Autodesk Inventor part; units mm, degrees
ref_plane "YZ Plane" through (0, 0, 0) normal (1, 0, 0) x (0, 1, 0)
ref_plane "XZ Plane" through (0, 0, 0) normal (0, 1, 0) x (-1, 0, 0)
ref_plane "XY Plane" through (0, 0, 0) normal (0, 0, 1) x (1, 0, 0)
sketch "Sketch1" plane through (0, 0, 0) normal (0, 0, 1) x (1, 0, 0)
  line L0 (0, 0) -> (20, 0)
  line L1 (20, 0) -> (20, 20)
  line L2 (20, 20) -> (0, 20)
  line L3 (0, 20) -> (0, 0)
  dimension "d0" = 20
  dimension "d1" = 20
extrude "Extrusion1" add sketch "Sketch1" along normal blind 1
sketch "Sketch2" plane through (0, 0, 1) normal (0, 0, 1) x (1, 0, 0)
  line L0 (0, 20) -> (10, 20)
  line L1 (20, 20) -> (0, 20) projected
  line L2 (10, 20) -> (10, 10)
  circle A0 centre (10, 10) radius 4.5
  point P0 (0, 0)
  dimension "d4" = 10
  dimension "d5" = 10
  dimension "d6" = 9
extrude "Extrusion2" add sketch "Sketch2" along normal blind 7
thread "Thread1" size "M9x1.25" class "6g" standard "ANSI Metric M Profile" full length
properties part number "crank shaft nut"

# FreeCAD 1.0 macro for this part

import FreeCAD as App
import Part
import Sketcher

V = App.Vector
Q = App.Units.Quantity


def add_polygon(sketch, points):
    """Adds a closed chain of lines whose ends are joined by coincident constraints."""
    first, n = sketch.GeometryCount, len(points)
    for a, b in zip(points, points[1:] + points[:1]):
        sketch.addGeometry(Part.LineSegment(App.Vector(*a, 0), App.Vector(*b, 0)), False)
    for i in range(n):
        sketch.addConstraint(Sketcher.Constraint("Coincident", first + i, 2, first + (i + 1) % n, 1))

doc = App.newDocument("Part")
body = doc.addObject("PartDesign::Body", "Body")

# Sketch on XY plane
sketch1 = body.newObject("Sketcher::SketchObject", "Sketch")
sketch1.AttachmentSupport = (doc.getObject("XY_Plane"), [""])
sketch1.MapMode = "FlatFace"
add_polygon(sketch1, [(0, 20), (0, 0), (20, 0), (20, 20)])  # lines 0-3
sketch1.addConstraint([
    Sketcher.Constraint("Vertical", 0),
    Sketcher.Constraint("Horizontal", 1),
    Sketcher.Constraint("Vertical", 2),
    Sketcher.Constraint("Horizontal", 3),
    Sketcher.Constraint("Coincident", 0, 2, -1, 1),
    Sketcher.Constraint("Equal", 3, 0),
    Sketcher.Constraint("DistanceX", 1, 1, 1, 2, Q("20 mm")),
])
pad1 = body.newObject("PartDesign::Pad", "Pad")
pad1.Profile = sketch1
pad1.Length = 1

# Sketch on XY plane
sketch2 = body.newObject("Sketcher::SketchObject", "Sketch001")
sketch2.AttachmentSupport = (doc.getObject("XY_Plane"), [""])
sketch2.MapMode = "FlatFace"
sketch2.AttachmentOffset = App.Placement(V(0, 0, 1), App.Rotation())
sketch2.addGeometry(Part.Circle(V(10, 10, 0), V(0, 0, 1), 4.5), False)
sketch2.addConstraint([
    Sketcher.Constraint("Diameter", 0, Q("9 mm")),
    Sketcher.Constraint("DistanceX", -1, 1, 0, 3, Q("10 mm")),
    Sketcher.Constraint("DistanceY", -1, 1, 0, 3, Q("10 mm")),
])
pad2 = body.newObject("PartDesign::Pad", "Pad001")
pad2.Profile = sketch2
pad2.Length = 7

doc.recompute()
